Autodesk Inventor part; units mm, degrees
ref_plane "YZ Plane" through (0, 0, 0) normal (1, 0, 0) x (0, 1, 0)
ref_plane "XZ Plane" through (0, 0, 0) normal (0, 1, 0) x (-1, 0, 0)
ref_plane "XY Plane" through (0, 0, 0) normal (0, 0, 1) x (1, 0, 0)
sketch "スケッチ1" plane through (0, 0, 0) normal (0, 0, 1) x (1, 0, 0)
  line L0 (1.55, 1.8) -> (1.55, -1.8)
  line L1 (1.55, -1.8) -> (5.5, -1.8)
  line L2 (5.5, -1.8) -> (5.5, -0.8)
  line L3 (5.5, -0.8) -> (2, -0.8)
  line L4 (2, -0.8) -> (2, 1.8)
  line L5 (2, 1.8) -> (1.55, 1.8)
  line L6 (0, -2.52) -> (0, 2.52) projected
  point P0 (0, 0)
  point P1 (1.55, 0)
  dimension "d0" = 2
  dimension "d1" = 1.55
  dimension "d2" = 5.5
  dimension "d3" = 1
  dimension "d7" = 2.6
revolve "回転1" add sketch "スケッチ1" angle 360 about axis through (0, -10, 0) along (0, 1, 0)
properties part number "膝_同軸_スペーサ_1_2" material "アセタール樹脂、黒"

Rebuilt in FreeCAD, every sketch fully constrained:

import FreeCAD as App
import Part
import Sketcher
Q = App.Units.Quantity


def add_polygon(sketch, points):
    """Adds a closed chain of lines whose ends are joined by coincident constraints."""
    first, n = sketch.GeometryCount, len(points)
    for a, b in zip(points, points[1:] + points[:1]):
        sketch.addGeometry(Part.LineSegment(App.Vector(*a, 0), App.Vector(*b, 0)), False)
    for i in range(n):
        sketch.addConstraint(Sketcher.Constraint("Coincident", first + i, 2, first + (i + 1) % n, 1))

doc = App.newDocument("Part")
body = doc.addObject("PartDesign::Body", "Body")

sketch1 = body.newObject("Sketcher::SketchObject", "Sketch")
sketch1.AttachmentSupport = (doc.getObject("XY_Plane"), [""])
sketch1.MapMode = "FlatFace"
add_polygon(sketch1, [(2, 1.8), (1.55, 1.8), (1.55, -1.8), (5.5, -1.8), (5.5, -0.8), (2, -0.8)])
sketch1.addConstraint(Sketcher.Constraint("Horizontal", 0))
sketch1.addConstraint(Sketcher.Constraint("Vertical", 1))
sketch1.addConstraint(Sketcher.Constraint("Horizontal", 2))
sketch1.addConstraint(Sketcher.Constraint("Vertical", 3))
sketch1.addConstraint(Sketcher.Constraint("Horizontal", 4))
sketch1.addConstraint(Sketcher.Constraint("Vertical", 5))
sketch1.addConstraint(Sketcher.Constraint("DistanceY", 3, 1, 3, 2, Q("1 mm")))
sketch1.addConstraint(Sketcher.Constraint("DistanceY", 5, 1, 5, 2, Q("2.6 mm")))
sketch1.addConstraint(Sketcher.Constraint("DistanceX", -1, 1, 4, 2, Q("2 mm")))
sketch1.addConstraint(Sketcher.Constraint("DistanceX", -1, 1, 2, 2, Q("5.5 mm")))
sketch1.addConstraint(Sketcher.Constraint("DistanceX", -1, 1, 0, 2, Q("1.55 mm")))
sketch1.addConstraint(Sketcher.Constraint("DistanceY", -1, 1, 0, 2, Q("1.8 mm")))
revolution = body.newObject("PartDesign::Revolution", "Revolution")
revolution.Profile = sketch1
revolution.ReferenceAxis = (sketch1, ["V_Axis"])
revolution.Angle = 360

doc.recompute()
